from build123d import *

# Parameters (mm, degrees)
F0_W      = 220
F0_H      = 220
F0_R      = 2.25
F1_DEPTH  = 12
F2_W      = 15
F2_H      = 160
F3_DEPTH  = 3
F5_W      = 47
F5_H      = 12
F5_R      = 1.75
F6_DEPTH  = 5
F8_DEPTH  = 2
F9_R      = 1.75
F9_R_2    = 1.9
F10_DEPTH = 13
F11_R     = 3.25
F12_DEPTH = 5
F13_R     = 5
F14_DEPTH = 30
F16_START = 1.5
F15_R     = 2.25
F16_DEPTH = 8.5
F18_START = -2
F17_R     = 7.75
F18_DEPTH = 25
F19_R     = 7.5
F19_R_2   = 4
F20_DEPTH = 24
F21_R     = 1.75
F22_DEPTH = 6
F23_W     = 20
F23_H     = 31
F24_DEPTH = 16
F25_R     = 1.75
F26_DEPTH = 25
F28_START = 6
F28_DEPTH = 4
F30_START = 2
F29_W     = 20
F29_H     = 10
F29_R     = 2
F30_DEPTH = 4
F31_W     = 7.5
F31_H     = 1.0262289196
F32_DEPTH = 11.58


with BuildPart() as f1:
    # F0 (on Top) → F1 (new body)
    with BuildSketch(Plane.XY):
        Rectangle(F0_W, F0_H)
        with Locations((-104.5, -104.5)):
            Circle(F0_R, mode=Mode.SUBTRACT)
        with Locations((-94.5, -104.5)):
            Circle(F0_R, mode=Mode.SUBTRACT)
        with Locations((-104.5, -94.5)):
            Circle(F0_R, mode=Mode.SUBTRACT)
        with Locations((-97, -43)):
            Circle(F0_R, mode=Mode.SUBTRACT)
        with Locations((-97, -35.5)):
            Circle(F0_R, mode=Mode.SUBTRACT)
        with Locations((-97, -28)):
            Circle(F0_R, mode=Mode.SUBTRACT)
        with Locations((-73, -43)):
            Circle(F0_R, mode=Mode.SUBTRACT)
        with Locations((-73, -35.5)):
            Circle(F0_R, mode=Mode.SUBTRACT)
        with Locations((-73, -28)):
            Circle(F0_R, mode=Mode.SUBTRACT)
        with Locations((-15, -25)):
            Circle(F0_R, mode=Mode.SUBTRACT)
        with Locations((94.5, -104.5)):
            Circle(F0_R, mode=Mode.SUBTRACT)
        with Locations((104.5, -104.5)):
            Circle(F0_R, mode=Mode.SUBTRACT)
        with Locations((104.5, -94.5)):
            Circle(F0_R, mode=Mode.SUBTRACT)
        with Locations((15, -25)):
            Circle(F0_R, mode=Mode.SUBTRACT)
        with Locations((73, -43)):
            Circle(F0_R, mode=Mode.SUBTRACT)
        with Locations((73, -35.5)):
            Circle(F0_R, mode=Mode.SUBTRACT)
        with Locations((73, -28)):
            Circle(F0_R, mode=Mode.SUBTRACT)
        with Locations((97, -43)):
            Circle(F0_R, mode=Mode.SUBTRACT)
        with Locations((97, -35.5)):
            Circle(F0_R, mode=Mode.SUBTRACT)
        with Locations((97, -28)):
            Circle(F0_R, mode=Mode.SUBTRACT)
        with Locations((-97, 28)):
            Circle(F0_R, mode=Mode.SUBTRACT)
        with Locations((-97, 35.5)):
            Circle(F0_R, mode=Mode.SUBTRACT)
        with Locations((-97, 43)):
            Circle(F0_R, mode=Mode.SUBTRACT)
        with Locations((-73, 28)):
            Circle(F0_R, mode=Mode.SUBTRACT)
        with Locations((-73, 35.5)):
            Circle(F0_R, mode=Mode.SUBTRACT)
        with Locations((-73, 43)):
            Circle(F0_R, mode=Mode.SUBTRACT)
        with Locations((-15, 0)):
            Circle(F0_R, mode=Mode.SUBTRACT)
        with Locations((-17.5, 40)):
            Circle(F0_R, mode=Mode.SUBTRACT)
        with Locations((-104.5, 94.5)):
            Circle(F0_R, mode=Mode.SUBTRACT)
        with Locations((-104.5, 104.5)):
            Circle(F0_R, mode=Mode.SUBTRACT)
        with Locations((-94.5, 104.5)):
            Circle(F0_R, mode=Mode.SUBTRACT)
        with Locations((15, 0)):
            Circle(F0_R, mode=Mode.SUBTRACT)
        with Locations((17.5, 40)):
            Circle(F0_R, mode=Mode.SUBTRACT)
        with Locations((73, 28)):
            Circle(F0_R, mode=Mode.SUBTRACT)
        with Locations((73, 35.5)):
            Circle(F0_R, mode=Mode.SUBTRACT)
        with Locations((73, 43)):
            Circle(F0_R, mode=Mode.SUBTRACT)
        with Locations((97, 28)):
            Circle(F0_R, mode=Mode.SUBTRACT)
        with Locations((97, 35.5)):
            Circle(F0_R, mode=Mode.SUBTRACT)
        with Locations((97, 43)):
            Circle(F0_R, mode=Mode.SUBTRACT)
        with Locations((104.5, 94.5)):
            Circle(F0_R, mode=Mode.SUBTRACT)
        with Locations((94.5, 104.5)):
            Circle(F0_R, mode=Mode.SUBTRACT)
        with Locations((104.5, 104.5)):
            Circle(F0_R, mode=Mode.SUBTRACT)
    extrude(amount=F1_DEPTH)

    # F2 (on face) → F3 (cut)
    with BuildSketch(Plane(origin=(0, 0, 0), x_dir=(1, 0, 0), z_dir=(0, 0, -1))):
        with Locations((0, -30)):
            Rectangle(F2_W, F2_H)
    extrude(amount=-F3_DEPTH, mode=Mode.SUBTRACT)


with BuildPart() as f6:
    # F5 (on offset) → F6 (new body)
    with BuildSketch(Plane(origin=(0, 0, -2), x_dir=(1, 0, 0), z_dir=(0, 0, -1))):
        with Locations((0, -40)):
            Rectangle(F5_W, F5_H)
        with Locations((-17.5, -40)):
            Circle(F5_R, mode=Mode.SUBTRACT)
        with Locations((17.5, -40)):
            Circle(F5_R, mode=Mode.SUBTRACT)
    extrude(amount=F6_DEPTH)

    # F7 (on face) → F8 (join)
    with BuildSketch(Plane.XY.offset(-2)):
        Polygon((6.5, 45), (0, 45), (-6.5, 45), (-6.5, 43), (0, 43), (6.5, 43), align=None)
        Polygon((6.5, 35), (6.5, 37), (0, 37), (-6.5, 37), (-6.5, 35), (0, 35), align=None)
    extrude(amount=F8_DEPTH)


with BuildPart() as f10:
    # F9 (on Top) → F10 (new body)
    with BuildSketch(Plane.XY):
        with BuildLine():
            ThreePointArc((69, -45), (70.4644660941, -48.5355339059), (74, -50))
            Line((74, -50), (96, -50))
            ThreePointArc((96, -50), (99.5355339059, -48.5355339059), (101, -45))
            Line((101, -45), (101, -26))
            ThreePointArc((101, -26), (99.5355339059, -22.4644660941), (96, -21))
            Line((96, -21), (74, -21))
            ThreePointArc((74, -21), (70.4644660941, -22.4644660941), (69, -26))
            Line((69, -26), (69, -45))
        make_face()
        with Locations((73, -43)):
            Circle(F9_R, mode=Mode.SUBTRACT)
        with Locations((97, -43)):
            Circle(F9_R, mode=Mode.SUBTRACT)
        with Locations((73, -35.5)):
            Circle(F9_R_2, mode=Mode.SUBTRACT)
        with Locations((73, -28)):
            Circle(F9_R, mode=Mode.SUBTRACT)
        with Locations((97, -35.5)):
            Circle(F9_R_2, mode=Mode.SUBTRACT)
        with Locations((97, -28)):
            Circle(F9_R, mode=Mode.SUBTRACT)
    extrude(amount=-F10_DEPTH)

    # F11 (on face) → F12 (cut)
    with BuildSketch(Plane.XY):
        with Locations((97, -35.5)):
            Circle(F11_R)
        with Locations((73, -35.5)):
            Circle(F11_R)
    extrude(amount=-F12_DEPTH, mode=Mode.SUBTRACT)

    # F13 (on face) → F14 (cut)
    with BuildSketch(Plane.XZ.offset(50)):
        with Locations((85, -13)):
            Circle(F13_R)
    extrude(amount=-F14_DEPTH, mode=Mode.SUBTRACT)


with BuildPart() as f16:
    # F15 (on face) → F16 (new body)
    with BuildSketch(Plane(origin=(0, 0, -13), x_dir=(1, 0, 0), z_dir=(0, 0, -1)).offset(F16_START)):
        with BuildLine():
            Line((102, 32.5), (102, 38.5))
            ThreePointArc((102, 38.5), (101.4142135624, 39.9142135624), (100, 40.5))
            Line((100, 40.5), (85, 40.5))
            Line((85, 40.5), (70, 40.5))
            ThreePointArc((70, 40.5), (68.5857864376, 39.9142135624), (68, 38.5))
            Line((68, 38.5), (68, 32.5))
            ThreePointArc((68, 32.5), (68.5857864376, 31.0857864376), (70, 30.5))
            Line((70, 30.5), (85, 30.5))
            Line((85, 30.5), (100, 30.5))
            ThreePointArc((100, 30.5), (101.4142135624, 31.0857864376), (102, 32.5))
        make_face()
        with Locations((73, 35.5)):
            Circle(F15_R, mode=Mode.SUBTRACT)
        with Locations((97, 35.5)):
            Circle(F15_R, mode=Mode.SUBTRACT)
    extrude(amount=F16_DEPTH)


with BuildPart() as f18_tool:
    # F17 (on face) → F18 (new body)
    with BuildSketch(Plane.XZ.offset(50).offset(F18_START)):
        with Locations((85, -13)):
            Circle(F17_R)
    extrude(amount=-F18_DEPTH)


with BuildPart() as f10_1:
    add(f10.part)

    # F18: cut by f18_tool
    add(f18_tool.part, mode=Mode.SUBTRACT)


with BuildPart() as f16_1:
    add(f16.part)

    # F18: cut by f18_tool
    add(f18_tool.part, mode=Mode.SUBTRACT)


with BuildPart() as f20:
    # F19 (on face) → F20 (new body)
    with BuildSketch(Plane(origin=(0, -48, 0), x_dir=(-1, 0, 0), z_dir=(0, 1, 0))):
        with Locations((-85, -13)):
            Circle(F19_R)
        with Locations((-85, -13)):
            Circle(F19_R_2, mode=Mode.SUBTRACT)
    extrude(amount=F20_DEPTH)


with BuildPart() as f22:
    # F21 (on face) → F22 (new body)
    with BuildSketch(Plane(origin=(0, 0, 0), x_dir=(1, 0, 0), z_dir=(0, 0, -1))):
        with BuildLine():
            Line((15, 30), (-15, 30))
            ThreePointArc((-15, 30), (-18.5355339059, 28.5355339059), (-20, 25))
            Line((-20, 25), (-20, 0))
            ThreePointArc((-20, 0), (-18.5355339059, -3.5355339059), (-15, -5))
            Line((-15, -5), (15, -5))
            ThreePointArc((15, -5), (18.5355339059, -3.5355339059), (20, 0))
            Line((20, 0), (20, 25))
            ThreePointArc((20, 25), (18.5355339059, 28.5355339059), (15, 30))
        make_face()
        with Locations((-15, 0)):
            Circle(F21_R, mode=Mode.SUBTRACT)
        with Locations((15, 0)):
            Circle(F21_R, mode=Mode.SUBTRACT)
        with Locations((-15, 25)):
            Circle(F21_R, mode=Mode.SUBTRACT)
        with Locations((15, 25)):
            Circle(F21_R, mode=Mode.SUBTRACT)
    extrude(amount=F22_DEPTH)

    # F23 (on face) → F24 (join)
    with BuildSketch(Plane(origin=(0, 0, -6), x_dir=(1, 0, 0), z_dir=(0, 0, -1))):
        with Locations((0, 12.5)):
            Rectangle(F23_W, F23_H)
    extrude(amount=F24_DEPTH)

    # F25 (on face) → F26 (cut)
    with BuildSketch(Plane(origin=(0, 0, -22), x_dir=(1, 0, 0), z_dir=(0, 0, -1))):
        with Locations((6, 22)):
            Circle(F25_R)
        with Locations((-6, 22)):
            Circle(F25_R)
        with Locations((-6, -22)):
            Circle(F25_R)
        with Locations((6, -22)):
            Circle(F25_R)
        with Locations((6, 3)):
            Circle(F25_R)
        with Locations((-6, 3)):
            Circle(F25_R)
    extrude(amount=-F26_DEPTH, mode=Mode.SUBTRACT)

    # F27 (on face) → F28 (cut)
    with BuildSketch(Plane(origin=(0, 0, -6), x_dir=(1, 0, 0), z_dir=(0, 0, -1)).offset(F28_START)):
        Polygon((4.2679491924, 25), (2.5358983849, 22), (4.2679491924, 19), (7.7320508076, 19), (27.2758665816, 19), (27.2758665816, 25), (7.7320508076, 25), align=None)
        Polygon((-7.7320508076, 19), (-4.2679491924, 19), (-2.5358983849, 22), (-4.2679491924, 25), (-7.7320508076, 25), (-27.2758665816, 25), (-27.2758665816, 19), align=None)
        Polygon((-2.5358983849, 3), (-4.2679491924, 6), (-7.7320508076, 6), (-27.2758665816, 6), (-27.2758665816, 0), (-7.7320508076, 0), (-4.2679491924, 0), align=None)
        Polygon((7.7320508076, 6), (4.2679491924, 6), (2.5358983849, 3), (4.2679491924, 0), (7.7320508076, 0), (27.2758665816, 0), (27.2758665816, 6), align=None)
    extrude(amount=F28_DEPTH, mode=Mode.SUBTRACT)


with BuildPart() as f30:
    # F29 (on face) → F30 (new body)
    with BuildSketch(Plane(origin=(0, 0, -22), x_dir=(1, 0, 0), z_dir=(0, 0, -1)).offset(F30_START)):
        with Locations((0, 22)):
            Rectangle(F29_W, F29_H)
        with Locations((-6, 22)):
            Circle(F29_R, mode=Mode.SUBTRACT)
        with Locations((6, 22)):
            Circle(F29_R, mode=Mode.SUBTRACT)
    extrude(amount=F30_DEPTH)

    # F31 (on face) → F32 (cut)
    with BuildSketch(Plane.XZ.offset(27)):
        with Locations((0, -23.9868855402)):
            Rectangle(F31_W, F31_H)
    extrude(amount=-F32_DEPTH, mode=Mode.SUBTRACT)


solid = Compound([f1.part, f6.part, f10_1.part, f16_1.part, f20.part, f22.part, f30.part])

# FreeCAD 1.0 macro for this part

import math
import FreeCAD as App
import Part
import Sketcher
from FreeCAD import Vector
Q = App.Units.Quantity


def add_polygon(sketch, points):
    """Adds a closed chain of lines whose ends are joined by coincident constraints."""
    first, n = sketch.GeometryCount, len(points)
    for a, b in zip(points, points[1:] + points[:1]):
        sketch.addGeometry(Part.LineSegment(App.Vector(*a, 0), App.Vector(*b, 0)), False)
    for i in range(n):
        sketch.addConstraint(Sketcher.Constraint("Coincident", first + i, 2, first + (i + 1) % n, 1))

doc = App.newDocument("Part")
body = doc.addObject("PartDesign::Body", "Body")

# Sketch on XY plane
sketch1 = body.newObject("Sketcher::SketchObject", "Sketch")
sketch1.AttachmentSupport = (doc.getObject("XY_Plane"), [""])
sketch1.MapMode = "FlatFace"
add_polygon(sketch1, [(-110, 110), (-110, -110), (110, -110), (110, 110)])  # lines 0-3
sketch1.addGeometry(Part.Circle(Vector(-104.5, -104.5, 0), Vector(0, 0, 1), 2.2), False)  # 4
sketch1.addGeometry(Part.Circle(Vector(-94.5, -104.5, 0), Vector(0, 0, 1), 2.2), False)  # 5
sketch1.addGeometry(Part.Circle(Vector(-104.5, -94.5, 0), Vector(0, 0, 1), 2.2), False)  # 6
sketch1.addGeometry(Part.Circle(Vector(-97, -43, 0), Vector(0, 0, 1), 2.2), False)  # 7
sketch1.addGeometry(Part.Circle(Vector(-97, -35.5, 0), Vector(0, 0, 1), 2.2), False)  # 8
sketch1.addGeometry(Part.Circle(Vector(-97, -28, 0), Vector(0, 0, 1), 2.2), False)  # 9
sketch1.addGeometry(Part.Circle(Vector(-73, -43, 0), Vector(0, 0, 1), 2.2), False)  # 10
sketch1.addGeometry(Part.Circle(Vector(-73, -35.5, 0), Vector(0, 0, 1), 2.2), False)  # 11
sketch1.addGeometry(Part.Circle(Vector(-73, -28, 0), Vector(0, 0, 1), 2.2), False)  # 12
sketch1.addGeometry(Part.Circle(Vector(-15, -25, 0), Vector(0, 0, 1), 2.2), False)  # 13
sketch1.addGeometry(Part.Circle(Vector(94.5, -104.5, 0), Vector(0, 0, 1), 2.2), False)  # 14
sketch1.addGeometry(Part.Circle(Vector(104.5, -104.5, 0), Vector(0, 0, 1), 2.2), False)  # 15
sketch1.addGeometry(Part.Circle(Vector(104.5, -94.5, 0), Vector(0, 0, 1), 2.2), False)  # 16
sketch1.addGeometry(Part.Circle(Vector(15, -25, 0), Vector(0, 0, 1), 2.2), False)  # 17
sketch1.addGeometry(Part.Circle(Vector(73, -43, 0), Vector(0, 0, 1), 2.2), False)  # 18
sketch1.addGeometry(Part.Circle(Vector(73, -35.5, 0), Vector(0, 0, 1), 2.2), False)  # 19
sketch1.addGeometry(Part.Circle(Vector(73, -28, 0), Vector(0, 0, 1), 2.2), False)  # 20
sketch1.addGeometry(Part.Circle(Vector(97, -43, 0), Vector(0, 0, 1), 2.2), False)  # 21
sketch1.addGeometry(Part.Circle(Vector(97, -35.5, 0), Vector(0, 0, 1), 2.2), False)  # 22
sketch1.addGeometry(Part.Circle(Vector(97, -28, 0), Vector(0, 0, 1), 2.2), False)  # 23
sketch1.addGeometry(Part.Circle(Vector(-97, 28, 0), Vector(0, 0, 1), 2.2), False)  # 24
sketch1.addGeometry(Part.Circle(Vector(-97, 35.5, 0), Vector(0, 0, 1), 2.2), False)  # 25
sketch1.addGeometry(Part.Circle(Vector(-97, 43, 0), Vector(0, 0, 1), 2.2), False)  # 26
sketch1.addGeometry(Part.Circle(Vector(-73, 28, 0), Vector(0, 0, 1), 2.2), False)  # 27
sketch1.addGeometry(Part.Circle(Vector(-73, 35.5, 0), Vector(0, 0, 1), 2.2), False)  # 28
sketch1.addGeometry(Part.Circle(Vector(-73, 43, 0), Vector(0, 0, 1), 2.2), False)  # 29
sketch1.addGeometry(Part.Circle(Vector(-15, 0, 0), Vector(0, 0, 1), 2.2), False)  # 30
sketch1.addGeometry(Part.Circle(Vector(-17.5, 40, 0), Vector(0, 0, 1), 2.2), False)  # 31
sketch1.addGeometry(Part.Circle(Vector(-104.5, 94.5, 0), Vector(0, 0, 1), 2.2), False)  # 32
sketch1.addGeometry(Part.Circle(Vector(-104.5, 104.5, 0), Vector(0, 0, 1), 2.2), False)  # 33
sketch1.addGeometry(Part.Circle(Vector(-94.5, 104.5, 0), Vector(0, 0, 1), 2.2), False)  # 34
sketch1.addGeometry(Part.Circle(Vector(15, 0, 0), Vector(0, 0, 1), 2.2), False)  # 35
sketch1.addGeometry(Part.Circle(Vector(17.5, 40, 0), Vector(0, 0, 1), 2.2), False)  # 36
sketch1.addGeometry(Part.Circle(Vector(73, 28, 0), Vector(0, 0, 1), 2.2), False)  # 37
sketch1.addGeometry(Part.Circle(Vector(73, 35.5, 0), Vector(0, 0, 1), 2.2), False)  # 38
sketch1.addGeometry(Part.Circle(Vector(73, 43, 0), Vector(0, 0, 1), 2.2), False)  # 39
sketch1.addGeometry(Part.Circle(Vector(97, 28, 0), Vector(0, 0, 1), 2.2), False)  # 40
sketch1.addGeometry(Part.Circle(Vector(97, 35.5, 0), Vector(0, 0, 1), 2.2), False)  # 41
sketch1.addGeometry(Part.Circle(Vector(97, 43, 0), Vector(0, 0, 1), 2.2), False)  # 42
sketch1.addGeometry(Part.Circle(Vector(104.5, 94.5, 0), Vector(0, 0, 1), 2.2), False)  # 43
sketch1.addGeometry(Part.Circle(Vector(94.5, 104.5, 0), Vector(0, 0, 1), 2.2), False)  # 44
sketch1.addGeometry(Part.Circle(Vector(104.5, 104.5, 0), Vector(0, 0, 1), 2.2), False)  # 45
sketch1.addConstraint([
    Sketcher.Constraint("Vertical", 0),
    Sketcher.Constraint("Horizontal", 1),
    Sketcher.Constraint("Vertical", 2),
    Sketcher.Constraint("Horizontal", 3),
    Sketcher.Constraint("Equal", 4, 5),
    Sketcher.Constraint("Equal", 5, 6),
    Sketcher.Constraint("Equal", 6, 7),
    Sketcher.Constraint("Equal", 7, 8),
    Sketcher.Constraint("Equal", 8, 9),
    Sketcher.Constraint("Equal", 9, 10),
    Sketcher.Constraint("Equal", 10, 11),
    Sketcher.Constraint("Equal", 11, 12),
    Sketcher.Constraint("Equal", 12, 13),
    Sketcher.Constraint("Equal", 13, 14),
    Sketcher.Constraint("Equal", 14, 15),
    Sketcher.Constraint("Equal", 15, 16),
    Sketcher.Constraint("Equal", 16, 17),
    Sketcher.Constraint("Equal", 17, 18),
    Sketcher.Constraint("Equal", 18, 19),
    Sketcher.Constraint("Equal", 19, 20),
    Sketcher.Constraint("Equal", 20, 21),
    Sketcher.Constraint("Equal", 21, 22),
    Sketcher.Constraint("Equal", 22, 23),
    Sketcher.Constraint("Equal", 23, 24),
    Sketcher.Constraint("Equal", 24, 25),
    Sketcher.Constraint("Equal", 25, 26),
    Sketcher.Constraint("Equal", 26, 27),
    Sketcher.Constraint("Equal", 27, 28),
    Sketcher.Constraint("Equal", 28, 29),
    Sketcher.Constraint("Equal", 29, 30),
    Sketcher.Constraint("Equal", 30, 31),
    Sketcher.Constraint("Equal", 31, 32),
    Sketcher.Constraint("Equal", 32, 33),
    Sketcher.Constraint("Equal", 33, 34),
    Sketcher.Constraint("Equal", 34, 35),
    Sketcher.Constraint("Equal", 35, 36),
    Sketcher.Constraint("Equal", 36, 37),
    Sketcher.Constraint("Equal", 37, 38),
    Sketcher.Constraint("Equal", 38, 39),
    Sketcher.Constraint("Equal", 39, 40),
    Sketcher.Constraint("Equal", 40, 41),
    Sketcher.Constraint("Equal", 41, 42),
    Sketcher.Constraint("Equal", 42, 43),
    Sketcher.Constraint("Equal", 43, 44),
    Sketcher.Constraint("Equal", 44, 45),
    Sketcher.Constraint("Symmetric", 23, 3, 24, 3, -1, 1),
    Sketcher.Constraint("Symmetric", 22, 3, 25, 3, -1, 1),
    Sketcher.Constraint("Symmetric", 21, 3, 26, 3, -1, 1),
    Sketcher.Constraint("Symmetric", 20, 3, 27, 3, -1, 1),
    Sketcher.Constraint("Symmetric", 19, 3, 28, 3, -1, 1),
    Sketcher.Constraint("Symmetric", 18, 3, 29, 3, -1, 1),
    Sketcher.Constraint("Symmetric", 16, 3, 32, 3, -1, 1),
    Sketcher.Constraint("Symmetric", 15, 3, 33, 3, -1, 1),
    Sketcher.Constraint("Symmetric", 14, 3, 34, 3, -1, 1),
    Sketcher.Constraint("Symmetric", 30, 3, 35, 3, -1, 1),
    Sketcher.Constraint("Symmetric", 12, 3, 37, 3, -1, 1),
    Sketcher.Constraint("Symmetric", 11, 3, 38, 3, -1, 1),
    Sketcher.Constraint("Symmetric", 10, 3, 39, 3, -1, 1),
    Sketcher.Constraint("Symmetric", 9, 3, 40, 3, -1, 1),
    Sketcher.Constraint("Symmetric", 8, 3, 41, 3, -1, 1),
    Sketcher.Constraint("Symmetric", 7, 3, 42, 3, -1, 1),
    Sketcher.Constraint("Symmetric", 6, 3, 43, 3, -1, 1),
    Sketcher.Constraint("Symmetric", 5, 3, 44, 3, -1, 1),
    Sketcher.Constraint("Symmetric", 4, 3, 45, 3, -1, 1),
    Sketcher.Constraint("Symmetric", 0, 2, 2, 2, -1, 1),
    Sketcher.Constraint("Symmetric", 5, 3, 14, 3, -2),
    Sketcher.Constraint("Symmetric", 4, 3, 15, 3, -2),
    Sketcher.Constraint("Symmetric", 6, 3, 16, 3, -2),
    Sketcher.Constraint("Symmetric", 13, 3, 17, 3, -2),
    Sketcher.Constraint("Symmetric", 10, 3, 18, 3, -2),
    Sketcher.Constraint("Symmetric", 11, 3, 19, 3, -2),
    Sketcher.Constraint("Symmetric", 12, 3, 20, 3, -2),
    Sketcher.Constraint("Symmetric", 7, 3, 21, 3, -2),
    Sketcher.Constraint("Symmetric", 8, 3, 22, 3, -2),
    Sketcher.Constraint("Symmetric", 9, 3, 23, 3, -2),
    Sketcher.Constraint("Symmetric", 31, 3, 36, 3, -2),
    Sketcher.Constraint("PointOnObject", 30, 3, -1),
    Sketcher.Constraint("Horizontal", 4, 3, 5, 3),
    Sketcher.Constraint("Horizontal", 7, 3, 10, 3),
    Sketcher.Constraint("Horizontal", 8, 3, 11, 3),
    Sketcher.Constraint("Horizontal", 9, 3, 12, 3),
    Sketcher.Constraint("Vertical", 4, 3, 6, 3),
    Sketcher.Constraint("Vertical", 7, 3, 8, 3),
    Sketcher.Constraint("Vertical", 8, 3, 9, 3),
    Sketcher.Constraint("Vertical", 10, 3, 11, 3),
    Sketcher.Constraint("Vertical", 11, 3, 12, 3),
    Sketcher.Constraint("Vertical", 13, 3, 30, 3),
    Sketcher.Constraint("Equal", 3, 0),
    Sketcher.Constraint("Diameter", 4, Q("4.5 mm")),
    Sketcher.Constraint("DistanceX", 1, 1, 1, 2, Q("220 mm")),
    Sketcher.Constraint("DistanceX", 7, 3, -1, 1, Q("97 mm")),
    Sketcher.Constraint("DistanceY", 7, 3, -1, 1, Q("43 mm")),
    Sketcher.Constraint("DistanceY", 9, 3, -1, 1, Q("28 mm")),
    Sketcher.Constraint("DistanceX", 10, 3, -1, 1, Q("73 mm")),
    Sketcher.Constraint("DistanceX", 13, 3, -1, 1, Q("15 mm")),
    Sketcher.Constraint("DistanceY", 13, 3, -1, 1, Q("25 mm")),
    Sketcher.Constraint("DistanceY", -1, 1, 31, 3, Q("40 mm")),
    Sketcher.Constraint("DistanceX", 4, 3, 5, 3, Q("10 mm")),
    Sketcher.Constraint("DistanceY", 4, 3, 6, 3, Q("10 mm")),
    Sketcher.Constraint("DistanceY", 6, 3, 8, 3, Q("59 mm")),
    Sketcher.Constraint("DistanceX", 5, 3, 14, 3, Q("189 mm")),
    Sketcher.Constraint("DistanceY", 8, 3, 25, 3, Q("71 mm")),
    Sketcher.Constraint("DistanceX", 31, 3, 36, 3, Q("35 mm")),
])
pad1 = body.newObject("PartDesign::Pad", "Pad")
pad1.Profile = sketch1
pad1.Length = 12

# Sketch on XY plane
sketch2 = body.newObject("Sketcher::SketchObject", "Sketch001")
sketch2.AttachmentSupport = (doc.getObject("XY_Plane"), [""])
sketch2.MapMode = "FlatFace"
add_polygon(sketch2, [(-8, -50), (-8, 110), (8, 110), (8, -50)])  # lines 0-3
sketch2.addConstraint([
    Sketcher.Constraint("Vertical", 0),
    Sketcher.Constraint("Horizontal", 1),
    Sketcher.Constraint("Vertical", 2),
    Sketcher.Constraint("Horizontal", 3),
    Sketcher.Constraint("DistanceX", 1, 1, 1, 2, Q("15 mm")),
    Sketcher.Constraint("DistanceY", 0, 1, 0, 2, Q("160 mm")),
    Sketcher.Constraint("DistanceY", -1, 1, 0, 2, Q("110 mm")),
    Sketcher.Constraint("DistanceX", 0, 2, -1, 1, Q("7.5 mm")),
])
pocket1 = body.newObject("PartDesign::Pocket", "Pocket")
pocket1.Profile = sketch2
pocket1.Length = 3
pocket1.Reversed = True
body2 = doc.addObject("PartDesign::Body", "Body001")

# Sketch on XY plane
sketch3 = body2.newObject("Sketcher::SketchObject", "Sketch002")
sketch3.AttachmentSupport = (doc.getObject("XY_Plane001"), [""])
sketch3.MapMode = "FlatFace"
sketch3.AttachmentOffset = App.Placement(Vector(0, 0, -2), App.Rotation())
add_polygon(sketch3, [(-23.5, 34), (-23.5, 46), (23.5, 46), (23.5, 34)])  # lines 0-3
sketch3.addGeometry(Part.Circle(Vector(-17.5, 40, 0), Vector(0, 0, 1), 1.8), False)  # 4
sketch3.addGeometry(Part.Circle(Vector(17.5, 40, 0), Vector(0, 0, 1), 1.8), False)  # 5
sketch3.addConstraint([
    Sketcher.Constraint("Vertical", 0),
    Sketcher.Constraint("Horizontal", 1),
    Sketcher.Constraint("Vertical", 2),
    Sketcher.Constraint("Horizontal", 3),
    Sketcher.Constraint("Equal", 4, 5),
    Sketcher.Constraint("Symmetric", 4, 3, 5, 3, -2),
    Sketcher.Constraint("Diameter", 4, Q("3.5 mm")),
    Sketcher.Constraint("DistanceX", 1, 1, 1, 2, Q("47 mm")),
    Sketcher.Constraint("DistanceY", 0, 1, 0, 2, Q("12 mm")),
    Sketcher.Constraint("DistanceY", -1, 1, 4, 3, Q("40 mm")),
    Sketcher.Constraint("DistanceY", -1, 1, 0, 2, Q("46 mm")),
    Sketcher.Constraint("DistanceX", 4, 3, 5, 3, Q("35 mm")),
    Sketcher.Constraint("DistanceX", 0, 2, 4, 3, Q("6 mm")),
])
pad2 = body2.newObject("PartDesign::Pad", "Pad001")
pad2.Profile = sketch3
pad2.Length = 5
pad2.Reversed = True

# Sketch on XY plane
sketch4 = body2.newObject("Sketcher::SketchObject", "Sketch003")
sketch4.AttachmentSupport = (doc.getObject("XY_Plane001"), [""])
sketch4.MapMode = "FlatFace"
sketch4.AttachmentOffset = App.Placement(Vector(0, 0, -2), App.Rotation())
add_polygon(sketch4, [(6.5, 45), (-6.5, 45), (-6.5, 43), (6.5, 43)])  # lines 0-3
add_polygon(sketch4, [(6.5, 35), (6.5, 37), (-6.5, 37), (-6.5, 35)])  # lines 4-7
sketch4.addConstraint([
    Sketcher.Constraint("Horizontal", 0),
    Sketcher.Constraint("Vertical", 1),
    Sketcher.Constraint("Horizontal", 2),
    Sketcher.Constraint("Vertical", 3),
    Sketcher.Constraint("Vertical", 4),
    Sketcher.Constraint("Horizontal", 5),
    Sketcher.Constraint("Vertical", 6),
    Sketcher.Constraint("Horizontal", 7),
    Sketcher.Constraint("Vertical", 3, 2, 4, 2),
    Sketcher.Constraint("Vertical", 1, 2, 5, 2),
    Sketcher.Constraint("Equal", 3, 4),
    Sketcher.Constraint("DistanceX", 0, 2, 0, 1, Q("13 mm")),
    Sketcher.Constraint("DistanceY", 1, 2, 1, 1, Q("2 mm")),
    Sketcher.Constraint("DistanceY", -1, 1, 0, 2, Q("45 mm")),
    Sketcher.Constraint("DistanceY", -1, 1, 4, 2, Q("37 mm")),
    Sketcher.Constraint("DistanceX", 0, 2, -1, 1, Q("6.5 mm")),
])
pad3 = body2.newObject("PartDesign::Pad", "Pad002")
pad3.Profile = sketch4
pad3.Length = 2
body3 = doc.addObject("PartDesign::Body", "Body002")

# Sketch on XY plane
sketch5 = body3.newObject("Sketcher::SketchObject", "Sketch004")
sketch5.AttachmentSupport = (doc.getObject("XY_Plane002"), [""])
sketch5.MapMode = "FlatFace"
sketch5.addGeometry([
    Part.ArcOfCircle(Part.Circle(Vector(74, -45, 0), Vector(0, 0, 1), 5), math.radians(180), math.radians(270)),  # 0
    Part.LineSegment(Vector(74, -50, 0), Vector(96, -50, 0)),  # 1
    Part.ArcOfCircle(Part.Circle(Vector(96, -45, 0), Vector(0, 0, 1), 5), math.radians(-90), math.radians(0)),  # 2
    Part.LineSegment(Vector(101, -45, 0), Vector(101, -26, 0)),  # 3
    Part.ArcOfCircle(Part.Circle(Vector(96, -26, 0), Vector(0, 0, 1), 5), math.radians(0), math.radians(90)),  # 4
    Part.LineSegment(Vector(96, -21, 0), Vector(74, -21, 0)),  # 5
    Part.ArcOfCircle(Part.Circle(Vector(74, -26, 0), Vector(0, 0, 1), 5), math.radians(90), math.radians(180)),  # 6
    Part.LineSegment(Vector(69, -26, 0), Vector(69, -45, 0)),  # 7
    Part.Circle(Vector(73, -43, 0), Vector(0, 0, 1), 1.8),  # 8
    Part.Circle(Vector(97, -43, 0), Vector(0, 0, 1), 1.8),  # 9
    Part.Circle(Vector(73, -35.5, 0), Vector(0, 0, 1), 1.9),  # 10
    Part.Circle(Vector(73, -28, 0), Vector(0, 0, 1), 1.8),  # 11
    Part.Circle(Vector(97, -35.5, 0), Vector(0, 0, 1), 1.9),  # 12
    Part.Circle(Vector(97, -28, 0), Vector(0, 0, 1), 1.8),  # 13
], False)
sketch5.addConstraint([
    Sketcher.Constraint("Tangent", 0, 2, 1, 1),
    Sketcher.Constraint("Tangent", 1, 2, 2, 1),
    Sketcher.Constraint("Tangent", 2, 2, 3, 1),
    Sketcher.Constraint("Tangent", 3, 2, 4, 1),
    Sketcher.Constraint("Tangent", 4, 2, 5, 1),
    Sketcher.Constraint("Tangent", 5, 2, 6, 1),
    Sketcher.Constraint("Tangent", 6, 2, 7, 1),
    Sketcher.Constraint("Tangent", 7, 2, 0, 1),
    Sketcher.Constraint("Horizontal", 1),
    Sketcher.Constraint("Vertical", 3),
    Sketcher.Constraint("Horizontal", 5),
    Sketcher.Constraint("Vertical", 7),
    Sketcher.Constraint("Equal", 0, 2),
    Sketcher.Constraint("Equal", 2, 4),
    Sketcher.Constraint("Equal", 4, 6),
    Sketcher.Constraint("Equal", 8, 9),
    Sketcher.Constraint("Equal", 9, 11),
    Sketcher.Constraint("Equal", 10, 12),
    Sketcher.Constraint("Equal", 11, 13),
    Sketcher.Constraint("Horizontal", 8, 3, 9, 3),
    Sketcher.Constraint("Horizontal", 10, 3, 12, 3),
    Sketcher.Constraint("Horizontal", 11, 3, 13, 3),
    Sketcher.Constraint("Vertical", 8, 3, 10, 3),
    Sketcher.Constraint("Vertical", 10, 3, 11, 3),
    Sketcher.Constraint("Vertical", 9, 3, 12, 3),
    Sketcher.Constraint("Vertical", 12, 3, 13, 3),
    Sketcher.Constraint("Radius", 0, Q("5 mm")),
    Sketcher.Constraint("Diameter", 8, Q("3.5 mm")),
    Sketcher.Constraint("Diameter", 10, Q("3.8 mm")),
    Sketcher.Constraint("DistanceX", 1, 1, 1, 2, Q("22 mm")),
    Sketcher.Constraint("DistanceY", 3, 1, 3, 2, Q("19 mm")),
    Sketcher.Constraint("DistanceX", -1, 1, 0, 3, Q("74 mm")),
    Sketcher.Constraint("DistanceY", 0, 3, -1, 1, Q("45 mm")),
    Sketcher.Constraint("DistanceX", -1, 1, 8, 3, Q("73 mm")),
    Sketcher.Constraint("DistanceY", 8, 3, -1, 1, Q("43 mm")),
    Sketcher.Constraint("DistanceX", -1, 1, 9, 3, Q("97 mm")),
    Sketcher.Constraint("DistanceY", 11, 3, -1, 1, Q("28 mm")),
    Sketcher.Constraint("DistanceY", 10, 3, -1, 1, Q("35.5 mm")),
])
pad4 = body3.newObject("PartDesign::Pad", "Pad003")
pad4.Profile = sketch5
pad4.Length = 13
pad4.Reversed = True

# Sketch on XY plane
sketch6 = body3.newObject("Sketcher::SketchObject", "Sketch005")
sketch6.AttachmentSupport = (doc.getObject("XY_Plane002"), [""])
sketch6.MapMode = "FlatFace"
sketch6.addGeometry([
    Part.Circle(Vector(97, -35.5, 0), Vector(0, 0, 1), 3.2),
    Part.Circle(Vector(73, -35.5, 0), Vector(0, 0, 1), 3.2),
], False)
sketch6.addConstraint([
    Sketcher.Constraint("Equal", 0, 1),
    Sketcher.Constraint("Horizontal", 0, 3, 1, 3),
    Sketcher.Constraint("Diameter", 0, Q("6.5 mm")),
    Sketcher.Constraint("DistanceX", -1, 1, 0, 3, Q("97 mm")),
    Sketcher.Constraint("DistanceX", -1, 1, 1, 3, Q("73 mm")),
    Sketcher.Constraint("DistanceY", 0, 3, -1, 1, Q("35.5 mm")),
])
pocket2 = body3.newObject("PartDesign::Pocket", "Pocket001")
pocket2.Profile = sketch6
pocket2.Length = 5

# Sketch on XZ plane
sketch7 = body3.newObject("Sketcher::SketchObject", "Sketch006")
sketch7.AttachmentSupport = (doc.getObject("XZ_Plane002"), [""])
sketch7.MapMode = "FlatFace"
sketch7.AttachmentOffset = App.Placement(Vector(0, 0, 50), App.Rotation())
sketch7.addGeometry(Part.Circle(Vector(85, -13, 0), Vector(0, 0, 1), 5), False)
sketch7.addConstraint([
    Sketcher.Constraint("Diameter", 0, Q("10 mm")),
    Sketcher.Constraint("DistanceX", -1, 1, 0, 3, Q("85 mm")),
    Sketcher.Constraint("DistanceY", 0, 3, -1, 1, Q("13 mm")),
])
pocket3 = body3.newObject("PartDesign::Pocket", "Pocket002")
pocket3.Profile = sketch7
pocket3.Length = 30
body4 = doc.addObject("PartDesign::Body", "Body003")

# Sketch on XY plane
sketch8 = body4.newObject("Sketcher::SketchObject", "Sketch007")
sketch8.AttachmentSupport = (doc.getObject("XY_Plane003"), [""])
sketch8.MapMode = "FlatFace"
sketch8.AttachmentOffset = App.Placement(Vector(0, 0, -14.5), App.Rotation())
sketch8.addGeometry([
    Part.LineSegment(Vector(102, -32.5, 0), Vector(102, -38.5, 0)),  # 0
    Part.ArcOfCircle(Part.Circle(Vector(100, -38.5, 0), Vector(0, 0, 1), 2), math.radians(-90), math.radians(0)),  # 1
    Part.LineSegment(Vector(100, -40.5, 0), Vector(70, -40.5, 0)),  # 2
    Part.ArcOfCircle(Part.Circle(Vector(70, -38.5, 0), Vector(0, 0, 1), 2), math.radians(180), math.radians(270)),  # 3
    Part.LineSegment(Vector(68, -38.5, 0), Vector(68, -32.5, 0)),  # 4
    Part.ArcOfCircle(Part.Circle(Vector(70, -32.5, 0), Vector(0, 0, 1), 2), math.radians(90), math.radians(180)),  # 5
    Part.LineSegment(Vector(70, -30.5, 0), Vector(100, -30.5, 0)),  # 6
    Part.ArcOfCircle(Part.Circle(Vector(100, -32.5, 0), Vector(0, 0, 1), 2), math.radians(0), math.radians(90)),  # 7
    Part.Circle(Vector(73, -35.5, 0), Vector(0, 0, 1), 2.2),  # 8
    Part.Circle(Vector(97, -35.5, 0), Vector(0, 0, 1), 2.2),  # 9
], False)
sketch8.addConstraint([
    Sketcher.Constraint("Tangent", 0, 2, 1, 2),
    Sketcher.Constraint("Tangent", 1, 1, 2, 1),
    Sketcher.Constraint("Tangent", 2, 2, 3, 2),
    Sketcher.Constraint("Tangent", 3, 1, 4, 1),
    Sketcher.Constraint("Tangent", 4, 2, 5, 2),
    Sketcher.Constraint("Tangent", 5, 1, 6, 1),
    Sketcher.Constraint("Tangent", 6, 2, 7, 2),
    Sketcher.Constraint("Tangent", 7, 1, 0, 1),
    Sketcher.Constraint("Vertical", 0),
    Sketcher.Constraint("Horizontal", 2),
    Sketcher.Constraint("Vertical", 4),
    Sketcher.Constraint("Horizontal", 6),
    Sketcher.Constraint("Equal", 1, 3),
    Sketcher.Constraint("Equal", 3, 5),
    Sketcher.Constraint("Equal", 5, 7),
    Sketcher.Constraint("Equal", 8, 9),
    Sketcher.Constraint("Horizontal", 8, 3, 9, 3),
    Sketcher.Constraint("Radius", 1, Q("2 mm")),
    Sketcher.Constraint("Diameter", 8, Q("4.5 mm")),
    Sketcher.Constraint("DistanceX", 2, 2, 2, 1, Q("30 mm")),
    Sketcher.Constraint("DistanceY", 0, 2, 0, 1, Q("6 mm")),
    Sketcher.Constraint("DistanceX", -1, 1, 1, 3, Q("100 mm")),
    Sketcher.Constraint("DistanceX", -1, 1, 8, 3, Q("73 mm")),
    Sketcher.Constraint("DistanceX", -1, 1, 9, 3, Q("97 mm")),
    Sketcher.Constraint("DistanceY", 3, 3, 8, 3, Q("3 mm")),
    Sketcher.Constraint("DistanceY", 1, 3, -1, 1, Q("38.5 mm")),
])
pad5 = body4.newObject("PartDesign::Pad", "Pad004")
pad5.Profile = sketch8
pad5.Length = 8.5
pad5.Reversed = True
body5 = doc.addObject("PartDesign::Body", "Body004")

# Sketch on XZ plane
sketch9 = body5.newObject("Sketcher::SketchObject", "Sketch008")
sketch9.AttachmentSupport = (doc.getObject("XZ_Plane004"), [""])
sketch9.MapMode = "FlatFace"
sketch9.AttachmentOffset = App.Placement(Vector(0, 0, 48), App.Rotation())
sketch9.addGeometry(Part.Circle(Vector(85, -13, 0), Vector(0, 0, 1), 8), False)
sketch9.addConstraint([
    Sketcher.Constraint("Diameter", 0, Q("15.5 mm")),
    Sketcher.Constraint("DistanceX", -1, 1, 0, 3, Q("85 mm")),
    Sketcher.Constraint("DistanceY", 0, 3, -1, 1, Q("13 mm")),
])
pad6 = body5.newObject("PartDesign::Pad", "Pad005")
pad6.Profile = sketch9
pad6.Length = 25
pad6.Reversed = True
doc.recompute()

body6 = doc.addObject("PartDesign::Body", "Body005")
body6.BaseFeature = body5
boolean = body3.newObject("PartDesign::Boolean", "Boolean")
boolean.Type = "Cut"
boolean.addObjects([body6])
doc.recompute()

boolean2 = body4.newObject("PartDesign::Boolean", "Boolean001")
boolean2.Type = "Cut"
boolean2.addObjects([body5])
body7 = doc.addObject("PartDesign::Body", "Body006")

# Sketch on XZ plane
sketch10 = body7.newObject("Sketcher::SketchObject", "Sketch009")
sketch10.AttachmentSupport = (doc.getObject("XZ_Plane006"), [""])
sketch10.MapMode = "FlatFace"
sketch10.AttachmentOffset = App.Placement(Vector(0, 0, 48), App.Rotation())
sketch10.addGeometry([
    Part.Circle(Vector(85, -13, 0), Vector(0, 0, 1), 7.5),
    Part.Circle(Vector(85, -13, 0), Vector(0, 0, 1), 4),
], False)
sketch10.addConstraint([
    Sketcher.Constraint("Coincident", 1, 3, 0, 3),
    Sketcher.Constraint("Diameter", 0, Q("15 mm")),
    Sketcher.Constraint("Diameter", 1, Q("8 mm")),
    Sketcher.Constraint("DistanceX", -1, 1, 0, 3, Q("85 mm")),
    Sketcher.Constraint("DistanceY", 0, 3, -1, 1, Q("13 mm")),
])
pad7 = body7.newObject("PartDesign::Pad", "Pad006")
pad7.Profile = sketch10
pad7.Length = 24
pad7.Reversed = True
body8 = doc.addObject("PartDesign::Body", "Body007")

# Sketch on XY plane
sketch11 = body8.newObject("Sketcher::SketchObject", "Sketch010")
sketch11.AttachmentSupport = (doc.getObject("XY_Plane007"), [""])
sketch11.MapMode = "FlatFace"
sketch11.addGeometry([
    Part.LineSegment(Vector(15, -30, 0), Vector(-15, -30, 0)),  # 0
    Part.ArcOfCircle(Part.Circle(Vector(-15, -25, 0), Vector(0, 0, 1), 5), math.radians(180), math.radians(270)),  # 1
    Part.LineSegment(Vector(-20, -25, 0), Vector(-20, 0, 0)),  # 2
    Part.ArcOfCircle(Part.Circle(Vector(-15, 0, 0), Vector(0, 0, 1), 5), math.radians(90), math.radians(180)),  # 3
    Part.LineSegment(Vector(-15, 5, 0), Vector(15, 5, 0)),  # 4
    Part.ArcOfCircle(Part.Circle(Vector(15, 0, 0), Vector(0, 0, 1), 5), math.radians(0), math.radians(90)),  # 5
    Part.LineSegment(Vector(20, 0, 0), Vector(20, -25, 0)),  # 6
    Part.ArcOfCircle(Part.Circle(Vector(15, -25, 0), Vector(0, 0, 1), 5), math.radians(-90), math.radians(0)),  # 7
    Part.Circle(Vector(-15, 0, 0), Vector(0, 0, 1), 1.8),  # 8
    Part.Circle(Vector(15, 0, 0), Vector(0, 0, 1), 1.8),  # 9
    Part.Circle(Vector(-15, -25, 0), Vector(0, 0, 1), 1.8),  # 10
    Part.Circle(Vector(15, -25, 0), Vector(0, 0, 1), 1.8),  # 11
], False)
sketch11.addConstraint([
    Sketcher.Constraint("Tangent", 0, 2, 1, 2),
    Sketcher.Constraint("Tangent", 1, 1, 2, 1),
    Sketcher.Constraint("Tangent", 2, 2, 3, 2),
    Sketcher.Constraint("Tangent", 3, 1, 4, 1),
    Sketcher.Constraint("Tangent", 4, 2, 5, 2),
    Sketcher.Constraint("Tangent", 5, 1, 6, 1),
    Sketcher.Constraint("Tangent", 6, 2, 7, 2),
    Sketcher.Constraint("Tangent", 7, 1, 0, 1),
    Sketcher.Constraint("Horizontal", 0),
    Sketcher.Constraint("Vertical", 2),
    Sketcher.Constraint("Horizontal", 4),
    Sketcher.Constraint("Vertical", 6),
    Sketcher.Constraint("Coincident", 8, 3, 3, 3),
    Sketcher.Constraint("Coincident", 9, 3, 5, 3),
    Sketcher.Constraint("Coincident", 10, 3, 1, 3),
    Sketcher.Constraint("Coincident", 11, 3, 7, 3),
    Sketcher.Constraint("Equal", 1, 3),
    Sketcher.Constraint("Equal", 3, 5),
    Sketcher.Constraint("Equal", 5, 7),
    Sketcher.Constraint("Equal", 8, 9),
    Sketcher.Constraint("Equal", 9, 10),
    Sketcher.Constraint("Equal", 10, 11),
    Sketcher.Constraint("Symmetric", 3, 3, 5, 3, -1, 1),
    Sketcher.Constraint("Radius", 1, Q("5 mm")),
    Sketcher.Constraint("Diameter", 8, Q("3.5 mm")),
    Sketcher.Constraint("DistanceX", 0, 2, 0, 1, Q("30 mm")),
    Sketcher.Constraint("DistanceY", 2, 1, 2, 2, Q("25 mm")),
])
pad8 = body8.newObject("PartDesign::Pad", "Pad007")
pad8.Profile = sketch11
pad8.Length = 6
pad8.Reversed = True

# Sketch on XY plane
sketch12 = body8.newObject("Sketcher::SketchObject", "Sketch011")
sketch12.AttachmentSupport = (doc.getObject("XY_Plane007"), [""])
sketch12.MapMode = "FlatFace"
sketch12.AttachmentOffset = App.Placement(Vector(0, 0, -6), App.Rotation())
add_polygon(sketch12, [(-10, -28), (-10, 3), (10, 3), (10, -28)])  # lines 0-3
sketch12.addConstraint([
    Sketcher.Constraint("Vertical", 0),
    Sketcher.Constraint("Horizontal", 1),
    Sketcher.Constraint("Vertical", 2),
    Sketcher.Constraint("Horizontal", 3),
    Sketcher.Constraint("DistanceX", 1, 1, 1, 2, Q("20 mm")),
    Sketcher.Constraint("DistanceY", 0, 1, 0, 2, Q("31 mm")),
    Sketcher.Constraint("DistanceX", 0, 2, -1, 1, Q("10 mm")),
    Sketcher.Constraint("DistanceY", -1, 1, 0, 2, Q("3 mm")),
])
pad9 = body8.newObject("PartDesign::Pad", "Pad008")
pad9.Profile = sketch12
pad9.Length = 16
pad9.Reversed = True

# Sketch on XY plane
sketch13 = body8.newObject("Sketcher::SketchObject", "Sketch012")
sketch13.AttachmentSupport = (doc.getObject("XY_Plane007"), [""])
sketch13.MapMode = "FlatFace"
sketch13.AttachmentOffset = App.Placement(Vector(0, 0, -22), App.Rotation())
sketch13.addGeometry([
    Part.Circle(Vector(6, -22, 0), Vector(0, 0, 1), 1.8),  # 0
    Part.Circle(Vector(-6, -22, 0), Vector(0, 0, 1), 1.8),  # 1
    Part.Circle(Vector(-6, 22, 0), Vector(0, 0, 1), 1.8),  # 2
    Part.Circle(Vector(6, 22, 0), Vector(0, 0, 1), 1.8),  # 3
    Part.Circle(Vector(6, -3, 0), Vector(0, 0, 1), 1.8),  # 4
    Part.Circle(Vector(-6, -3, 0), Vector(0, 0, 1), 1.8),  # 5
], False)
sketch13.addConstraint([
    Sketcher.Constraint("Equal", 0, 1),
    Sketcher.Constraint("Equal", 1, 2),
    Sketcher.Constraint("Equal", 2, 3),
    Sketcher.Constraint("Equal", 3, 4),
    Sketcher.Constraint("Equal", 4, 5),
    Sketcher.Constraint("Symmetric", 0, 3, 2, 3, -1, 1),
    Sketcher.Constraint("Symmetric", 1, 3, 3, 3, -1, 1),
    Sketcher.Constraint("Symmetric", 0, 3, 1, 3, -2),
    Sketcher.Constraint("Symmetric", 4, 3, 5, 3, -2),
    Sketcher.Constraint("Vertical", 3, 3, 4, 3),
    Sketcher.Constraint("Diameter", 0, Q("3.5 mm")),
    Sketcher.Constraint("DistanceX", -1, 1, 0, 3, Q("6 mm")),
    Sketcher.Constraint("DistanceY", 0, 3, -1, 1, Q("22 mm")),
    Sketcher.Constraint("DistanceY", 4, 3, -1, 1, Q("3 mm")),
])
pocket4 = body8.newObject("PartDesign::Pocket", "Pocket003")
pocket4.Profile = sketch13
pocket4.Length = 25
pocket4.Reversed = True

# Sketch on XY plane
sketch14 = body8.newObject("Sketcher::SketchObject", "Sketch013")
sketch14.AttachmentSupport = (doc.getObject("XY_Plane007"), [""])
sketch14.MapMode = "FlatFace"
sketch14.AttachmentOffset = App.Placement(Vector(0, 0, -12), App.Rotation())
add_polygon(sketch14, [(4.3, -25), (2.5, -22), (4.3, -19), (27.3, -19), (27.3, -25)])  # lines 0-4
add_polygon(sketch14, [(-4.3, -19), (-2.5, -22), (-4.3, -25), (-27.3, -25), (-27.3, -19)])  # lines 5-9
add_polygon(sketch14, [(-2.5, -3), (-4.3, -6), (-27.3, -6), (-27.3, 0), (-4.3, 0)])  # lines 10-14
add_polygon(sketch14, [(4.3, -6), (2.5, -3), (4.3, 0), (27.3, 0), (27.3, -6)])  # lines 15-19
sketch14.addConstraint([
    Sketcher.Constraint("Horizontal", 2),
    Sketcher.Constraint("Vertical", 3),
    Sketcher.Constraint("Horizontal", 4),
    Sketcher.Constraint("Horizontal", 7),
    Sketcher.Constraint("Vertical", 8),
    Sketcher.Constraint("Horizontal", 9),
    Sketcher.Constraint("Horizontal", 11),
    Sketcher.Constraint("Vertical", 12),
    Sketcher.Constraint("Horizontal", 13),
    Sketcher.Constraint("Horizontal", 17),
    Sketcher.Constraint("Vertical", 18),
    Sketcher.Constraint("Horizontal", 19),
    Sketcher.Constraint("Symmetric", 13, 2, 16, 2, -1, 1),
    Sketcher.Constraint("Symmetric", 0, 2, 5, 2, -2),
    Sketcher.Constraint("Symmetric", 4, 2, 6, 2, -2),
    Sketcher.Constraint("Symmetric", 2, 2, 8, 2, -2),
    Sketcher.Constraint("Symmetric", 14, 2, 15, 2, -2),
    Sketcher.Constraint("Symmetric", 12, 2, 17, 2, -2),
    Sketcher.Constraint("Symmetric", 10, 2, 19, 2, -2),
    Sketcher.Constraint("Parallel", 0, 5),
    Sketcher.Constraint("Parallel", 1, 6),
    Sketcher.Constraint("Parallel", 6, 10),
    Sketcher.Constraint("Parallel", 5, 14),
    Sketcher.Constraint("Vertical", 1, 2, 4, 2),
    Sketcher.Constraint("Vertical", 9, 2, 10, 2),
    Sketcher.Constraint("Vertical", 8, 2, 11, 2),
    Sketcher.Constraint("Vertical", 10, 2, 13, 2),
    Sketcher.Constraint("Vertical", 5, 2, 14, 2),
    Sketcher.Constraint("DistanceY", 3, 2, 3, 1, Q("6 mm")),
    Sketcher.Constraint("Angle", 0, Q("120 deg")),
    Sketcher.Constraint("DistanceY", 0, 2, -1, 1, Q("22 mm")),
    Sketcher.Constraint("DistanceX", -1, 1, 0, 2, Q("2.535898 mm")),
    Sketcher.Constraint("DistanceX", 2, 1, 2, 2, Q("23.007917 mm")),
])
pocket5 = body8.newObject("PartDesign::Pocket", "Pocket004")
pocket5.Profile = sketch14
pocket5.Length = 4
body9 = doc.addObject("PartDesign::Body", "Body008")

# Sketch on XY plane
sketch15 = body9.newObject("Sketcher::SketchObject", "Sketch014")
sketch15.AttachmentSupport = (doc.getObject("XY_Plane008"), [""])
sketch15.MapMode = "FlatFace"
sketch15.AttachmentOffset = App.Placement(Vector(0, 0, -24), App.Rotation())
add_polygon(sketch15, [(-10, -27), (-10, -17), (10, -17), (10, -27)])  # lines 0-3
sketch15.addGeometry(Part.Circle(Vector(-6, -22, 0), Vector(0, 0, 1), 2), False)  # 4
sketch15.addGeometry(Part.Circle(Vector(6, -22, 0), Vector(0, 0, 1), 2), False)  # 5
sketch15.addConstraint([
    Sketcher.Constraint("Vertical", 0),
    Sketcher.Constraint("Horizontal", 1),
    Sketcher.Constraint("Vertical", 2),
    Sketcher.Constraint("Horizontal", 3),
    Sketcher.Constraint("Equal", 4, 5),
    Sketcher.Constraint("Symmetric", 4, 3, 5, 3, -2),
    Sketcher.Constraint("Diameter", 4, Q("4 mm")),
    Sketcher.Constraint("DistanceX", 1, 1, 1, 2, Q("20 mm")),
    Sketcher.Constraint("DistanceY", 0, 1, 0, 2, Q("10 mm")),
    Sketcher.Constraint("DistanceX", 4, 3, -1, 1, Q("6 mm")),
    Sketcher.Constraint("DistanceY", 4, 3, -1, 1, Q("22 mm")),
    Sketcher.Constraint("DistanceX", 0, 2, -1, 1, Q("10 mm")),
    Sketcher.Constraint("DistanceY", 0, 2, -1, 1, Q("17 mm")),
])
pad10 = body9.newObject("PartDesign::Pad", "Pad009")
pad10.Profile = sketch15
pad10.Length = 4
pad10.Reversed = True

# Sketch on XZ plane
sketch16 = body9.newObject("Sketcher::SketchObject", "Sketch015")
sketch16.AttachmentSupport = (doc.getObject("XZ_Plane008"), [""])
sketch16.MapMode = "FlatFace"
sketch16.AttachmentOffset = App.Placement(Vector(0, 0, 27), App.Rotation())
add_polygon(sketch16, [(-3.8, -23.5), (-3.8, -24.5), (3.8, -24.5), (3.8, -23.5)])  # lines 0-3
sketch16.addConstraint([
    Sketcher.Constraint("Vertical", 0),
    Sketcher.Constraint("Horizontal", 1),
    Sketcher.Constraint("Vertical", 2),
    Sketcher.Constraint("Horizontal", 3),
    Sketcher.Constraint("DistanceX", 1, 1, 1, 2, Q("7.5 mm")),
    Sketcher.Constraint("DistanceY", 0, 2, -1, 1, Q("24.5 mm")),
    Sketcher.Constraint("DistanceX", 0, 2, -1, 1, Q("3.75 mm")),
    Sketcher.Constraint("DistanceY", 0, 2, 0, 1, Q("1.026229 mm")),
])
pocket6 = body9.newObject("PartDesign::Pocket", "Pocket005")
pocket6.Profile = sketch16
pocket6.Length = 11.58

doc.recompute()
